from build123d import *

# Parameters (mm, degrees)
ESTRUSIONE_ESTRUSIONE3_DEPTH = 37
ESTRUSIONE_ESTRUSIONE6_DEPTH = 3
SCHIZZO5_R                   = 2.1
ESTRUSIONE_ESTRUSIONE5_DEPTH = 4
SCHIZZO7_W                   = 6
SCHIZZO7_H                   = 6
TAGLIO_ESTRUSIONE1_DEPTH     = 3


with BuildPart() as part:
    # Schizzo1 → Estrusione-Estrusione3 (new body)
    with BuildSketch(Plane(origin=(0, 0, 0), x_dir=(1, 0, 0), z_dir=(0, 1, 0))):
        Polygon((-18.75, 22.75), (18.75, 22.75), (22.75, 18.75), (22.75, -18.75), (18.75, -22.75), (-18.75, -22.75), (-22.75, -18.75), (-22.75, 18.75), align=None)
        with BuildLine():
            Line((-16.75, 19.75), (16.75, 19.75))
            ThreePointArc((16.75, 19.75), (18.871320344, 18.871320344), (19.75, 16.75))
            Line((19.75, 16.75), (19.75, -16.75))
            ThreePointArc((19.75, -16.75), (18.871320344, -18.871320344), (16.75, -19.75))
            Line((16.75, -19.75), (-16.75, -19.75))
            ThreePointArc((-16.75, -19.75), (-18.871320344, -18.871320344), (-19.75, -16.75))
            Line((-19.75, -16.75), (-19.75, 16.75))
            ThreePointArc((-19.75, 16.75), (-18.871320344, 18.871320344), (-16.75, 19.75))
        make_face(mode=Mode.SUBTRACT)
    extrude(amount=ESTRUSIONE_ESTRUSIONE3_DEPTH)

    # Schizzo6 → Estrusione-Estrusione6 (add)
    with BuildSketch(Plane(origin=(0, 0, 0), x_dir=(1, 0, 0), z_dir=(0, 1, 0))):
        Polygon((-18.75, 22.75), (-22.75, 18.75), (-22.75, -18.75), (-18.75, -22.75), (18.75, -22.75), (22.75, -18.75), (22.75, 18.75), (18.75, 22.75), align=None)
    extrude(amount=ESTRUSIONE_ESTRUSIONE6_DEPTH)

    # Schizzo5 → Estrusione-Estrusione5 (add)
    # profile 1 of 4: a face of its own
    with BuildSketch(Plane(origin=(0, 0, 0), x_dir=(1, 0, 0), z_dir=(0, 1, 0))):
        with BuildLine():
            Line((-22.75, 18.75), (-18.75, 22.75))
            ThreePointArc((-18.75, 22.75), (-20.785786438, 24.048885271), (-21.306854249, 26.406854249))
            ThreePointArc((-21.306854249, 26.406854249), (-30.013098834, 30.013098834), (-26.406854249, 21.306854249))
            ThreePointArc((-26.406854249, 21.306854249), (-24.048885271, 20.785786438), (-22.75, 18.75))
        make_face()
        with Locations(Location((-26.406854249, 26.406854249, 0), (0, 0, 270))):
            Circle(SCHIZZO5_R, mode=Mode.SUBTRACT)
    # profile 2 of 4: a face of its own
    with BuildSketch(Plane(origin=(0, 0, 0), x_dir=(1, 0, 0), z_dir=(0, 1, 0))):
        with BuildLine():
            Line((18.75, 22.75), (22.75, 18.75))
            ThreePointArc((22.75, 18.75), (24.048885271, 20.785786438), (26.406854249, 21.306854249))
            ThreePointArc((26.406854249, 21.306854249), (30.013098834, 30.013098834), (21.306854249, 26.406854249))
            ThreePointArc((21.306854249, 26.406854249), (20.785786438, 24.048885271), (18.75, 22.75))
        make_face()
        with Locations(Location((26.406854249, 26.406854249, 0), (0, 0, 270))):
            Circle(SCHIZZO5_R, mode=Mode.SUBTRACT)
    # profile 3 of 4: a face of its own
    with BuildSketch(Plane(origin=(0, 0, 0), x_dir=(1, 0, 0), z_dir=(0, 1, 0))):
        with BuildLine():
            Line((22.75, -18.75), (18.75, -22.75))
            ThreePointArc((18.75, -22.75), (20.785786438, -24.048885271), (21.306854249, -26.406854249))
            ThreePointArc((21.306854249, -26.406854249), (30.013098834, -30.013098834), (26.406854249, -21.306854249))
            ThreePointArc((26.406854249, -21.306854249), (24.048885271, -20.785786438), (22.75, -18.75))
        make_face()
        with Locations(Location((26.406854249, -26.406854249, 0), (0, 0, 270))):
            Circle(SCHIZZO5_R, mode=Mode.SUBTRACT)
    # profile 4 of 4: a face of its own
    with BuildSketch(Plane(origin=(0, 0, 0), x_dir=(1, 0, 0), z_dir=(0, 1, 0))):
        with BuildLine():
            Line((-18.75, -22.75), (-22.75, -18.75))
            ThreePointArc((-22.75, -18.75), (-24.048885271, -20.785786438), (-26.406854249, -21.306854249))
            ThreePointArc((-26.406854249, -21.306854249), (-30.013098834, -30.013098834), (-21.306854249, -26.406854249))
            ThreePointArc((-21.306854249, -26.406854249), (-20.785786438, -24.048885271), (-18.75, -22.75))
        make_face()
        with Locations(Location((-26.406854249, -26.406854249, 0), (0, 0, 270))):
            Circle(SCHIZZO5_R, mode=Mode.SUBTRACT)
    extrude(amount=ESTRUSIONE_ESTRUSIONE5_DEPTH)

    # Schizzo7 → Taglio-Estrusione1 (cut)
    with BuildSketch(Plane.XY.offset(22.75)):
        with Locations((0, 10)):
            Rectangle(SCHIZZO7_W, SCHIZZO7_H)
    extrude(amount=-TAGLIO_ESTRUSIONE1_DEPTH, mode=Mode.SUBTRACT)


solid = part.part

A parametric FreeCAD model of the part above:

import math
import FreeCAD as App
import Part
import Sketcher

V = App.Vector
Q = App.Units.Quantity


def add_polygon(sketch, points):
    """Adds a closed chain of lines whose ends are joined by coincident constraints."""
    first, n = sketch.GeometryCount, len(points)
    for a, b in zip(points, points[1:] + points[:1]):
        sketch.addGeometry(Part.LineSegment(App.Vector(*a, 0), App.Vector(*b, 0)), False)
    for i in range(n):
        sketch.addConstraint(Sketcher.Constraint("Coincident", first + i, 2, first + (i + 1) % n, 1))

doc = App.newDocument("Part")
body = doc.addObject("PartDesign::Body", "Body")

# Sketch on XZ plane
sketch1 = doc.addObject("Sketcher::SketchObject", "Sketch")
body.addObject(sketch1)
sketch1.AttachmentSupport = (doc.XZ_Plane, [""])
sketch1.MapMode = "FlatFace"
add_polygon(sketch1, [(18.8, -22.8), (-18.8, -22.8), (-22.8, -18.8), (-22.8, 18.8), (-18.8, 22.8), (18.8, 22.8), (22.8, 18.8), (22.8, -18.8)])  # lines 0-7
sketch1.addGeometry(Part.LineSegment(V(-16.8, -19.8, 0), V(16.8, -19.8, 0)), False)  # 8
sketch1.addGeometry(Part.ArcOfCircle(Part.Circle(V(16.8, -16.8, 0), V(0, 0, 1), 3), math.radians(-90), math.radians(0)), False)  # 9
sketch1.addGeometry(Part.LineSegment(V(19.8, -16.8, 0), V(19.8, 16.8, 0)), False)  # 10
sketch1.addGeometry(Part.ArcOfCircle(Part.Circle(V(16.8, 16.8, 0), V(0, 0, 1), 3), math.radians(0), math.radians(90)), False)  # 11
sketch1.addGeometry(Part.LineSegment(V(16.8, 19.8, 0), V(-16.8, 19.8, 0)), False)  # 12
sketch1.addGeometry(Part.ArcOfCircle(Part.Circle(V(-16.8, 16.8, 0), V(0, 0, 1), 3), math.radians(90), math.radians(180)), False)  # 13
sketch1.addGeometry(Part.LineSegment(V(-19.8, 16.8, 0), V(-19.8, -16.8, 0)), False)  # 14
sketch1.addGeometry(Part.ArcOfCircle(Part.Circle(V(-16.8, -16.8, 0), V(0, 0, 1), 3), math.radians(180), math.radians(270)), False)  # 15
sketch1.addConstraint([
    Sketcher.Constraint("Tangent", 8, 2, 9, 1),
    Sketcher.Constraint("Tangent", 9, 2, 10, 1),
    Sketcher.Constraint("Tangent", 10, 2, 11, 1),
    Sketcher.Constraint("Tangent", 11, 2, 12, 1),
    Sketcher.Constraint("Tangent", 12, 2, 13, 1),
    Sketcher.Constraint("Tangent", 13, 2, 14, 1),
    Sketcher.Constraint("Tangent", 14, 2, 15, 1),
    Sketcher.Constraint("Tangent", 15, 2, 8, 1),
    Sketcher.Constraint("Horizontal", 0),
    Sketcher.Constraint("Vertical", 2),
    Sketcher.Constraint("Horizontal", 4),
    Sketcher.Constraint("Vertical", 6),
    Sketcher.Constraint("Horizontal", 8),
    Sketcher.Constraint("Vertical", 10),
    Sketcher.Constraint("Horizontal", 12),
    Sketcher.Constraint("Vertical", 14),
    Sketcher.Constraint("Equal", 9, 11),
    Sketcher.Constraint("Equal", 11, 13),
    Sketcher.Constraint("Equal", 13, 15),
    Sketcher.Constraint("Symmetric", 9, 3, 13, 3, -1, 1),
    Sketcher.Constraint("Symmetric", 0, 2, 4, 2, -1, 1),
    Sketcher.Constraint("Symmetric", 1, 2, 5, 2, -1, 1),
    Sketcher.Constraint("Perpendicular", 1, 3),
    Sketcher.Constraint("Perpendicular", 5, 7),
    Sketcher.Constraint("Horizontal", 2, 2, 5, 2),
    Sketcher.Constraint("Horizontal", 1, 2, 6, 2),
    Sketcher.Constraint("Vertical", 0, 2, 3, 2),
    Sketcher.Constraint("Equal", 4, 2),
    Sketcher.Constraint("Equal", 12, 10),
    Sketcher.Constraint("Radius", 9, Q("3 mm")),
    Sketcher.Constraint("DistanceX", 0, 2, 0, 1, Q("37.5 mm")),
    Sketcher.Constraint("DistanceX", 8, 1, 8, 2, Q("33.5 mm")),
    Sketcher.Constraint("DistanceY", 0, 2, 15, 3, Q("6 mm")),
])
pad1 = doc.addObject("PartDesign::Pad", "Pad")
body.addObject(pad1)
pad1.Profile = sketch1
pad1.Length = 37
pad1.Reversed = True

# Sketch on XZ plane
sketch2 = doc.addObject("Sketcher::SketchObject", "Sketch001")
body.addObject(sketch2)
sketch2.AttachmentSupport = (doc.XZ_Plane, [""])
sketch2.MapMode = "FlatFace"
add_polygon(sketch2, [(-19, -23), (-23, -19), (-23, 19), (-19, 23), (19, 23), (23, 19), (23, -19), (19, -23)])  # lines 0-7
sketch2.addConstraint([
    Sketcher.Constraint("Vertical", 1),
    Sketcher.Constraint("Horizontal", 3),
    Sketcher.Constraint("Vertical", 5),
    Sketcher.Constraint("Horizontal", 7),
    Sketcher.Constraint("Symmetric", 0, 2, 4, 2, -1, 1),
    Sketcher.Constraint("Symmetric", 2, 2, 6, 2, -1, 1),
    Sketcher.Constraint("Perpendicular", 0, 2),
    Sketcher.Constraint("Perpendicular", 2, 4),
    Sketcher.Constraint("Perpendicular", 4, 6),
    Sketcher.Constraint("Horizontal", 1, 2, 4, 2),
    Sketcher.Constraint("Vertical", 3, 2, 6, 2),
    Sketcher.Constraint("Equal", 7, 1),
    Sketcher.Constraint("DistanceX", 3, 1, 3, 2, Q("37.5 mm")),
    Sketcher.Constraint("DistanceX", 1, 2, 2, 2, Q("4 mm")),
])
pad2 = doc.addObject("PartDesign::Pad", "Pad001")
body.addObject(pad2)
pad2.Profile = sketch2
pad2.Length = 3
pad2.Reversed = True

# Sketch on XZ plane
sketch3 = doc.addObject("Sketcher::SketchObject", "Sketch002")
body.addObject(sketch3)
sketch3.AttachmentSupport = (doc.XZ_Plane, [""])
sketch3.MapMode = "FlatFace"
sketch3.addGeometry([
    Part.LineSegment(V(-22.8, -18.8, 0), V(-18.8, -22.8, 0)),  # 0
    Part.ArcOfCircle(Part.Circle(V(-18.2, -25.9, 0), V(0, 0, 1), 3.2), math.radians(100), math.radians(190)),  # 1
    Part.ArcOfCircle(Part.Circle(V(-26.4, -26.4, 0), V(0, 0, 1), 5.1), math.radians(90), math.radians(360)),  # 2
    Part.ArcOfCircle(Part.Circle(V(-25.9, -18.2, 0), V(0, 0, 1), 3.2), math.radians(-100), math.radians(-10)),  # 3
    Part.Circle(V(-26.4, -26.4, 0), V(0, 0, 1), 2.1),  # 4
    Part.LineSegment(V(18.8, -22.8, 0), V(22.8, -18.8, 0)),  # 5
    Part.ArcOfCircle(Part.Circle(V(25.9, -18.2, 0), V(0, 0, 1), 3.2), math.radians(-170), math.radians(-80)),  # 6
    Part.ArcOfCircle(Part.Circle(V(26.4, -26.4, 0), V(0, 0, 1), 5.1), math.radians(180), math.radians(450)),  # 7
    Part.ArcOfCircle(Part.Circle(V(18.2, -25.9, 0), V(0, 0, 1), 3.2), math.radians(-10), math.radians(80)),  # 8
    Part.Circle(V(26.4, -26.4, 0), V(0, 0, 1), 2.1),  # 9
    Part.LineSegment(V(22.8, 18.8, 0), V(18.8, 22.8, 0)),  # 10
    Part.ArcOfCircle(Part.Circle(V(18.2, 25.9, 0), V(0, 0, 1), 3.2), math.radians(-80), math.radians(10)),  # 11
    Part.ArcOfCircle(Part.Circle(V(26.4, 26.4, 0), V(0, 0, 1), 5.1), math.radians(-90), math.radians(180)),  # 12
    Part.ArcOfCircle(Part.Circle(V(25.9, 18.2, 0), V(0, 0, 1), 3.2), math.radians(80), math.radians(170)),  # 13
    Part.Circle(V(26.4, 26.4, 0), V(0, 0, 1), 2.1),  # 14
    Part.LineSegment(V(-18.8, 22.8, 0), V(-22.8, 18.8, 0)),  # 15
    Part.ArcOfCircle(Part.Circle(V(-25.9, 18.2, 0), V(0, 0, 1), 3.2), math.radians(10), math.radians(100)),  # 16
    Part.ArcOfCircle(Part.Circle(V(-26.4, 26.4, 0), V(0, 0, 1), 5.1), math.radians(0), math.radians(270)),  # 17
    Part.ArcOfCircle(Part.Circle(V(-18.2, 25.9, 0), V(0, 0, 1), 3.2), math.radians(170), math.radians(260)),  # 18
    Part.Circle(V(-26.4, 26.4, 0), V(0, 0, 1), 2.1),  # 19
], False)
sketch3.addConstraint([
    Sketcher.Constraint("Coincident", 0, 2, 1, 1),
    Sketcher.Constraint("Coincident", 1, 2, 2, 2),
    Sketcher.Constraint("Coincident", 2, 1, 3, 1),
    Sketcher.Constraint("Coincident", 3, 2, 0, 1),
    Sketcher.Constraint("Coincident", 5, 2, 6, 1),
    Sketcher.Constraint("Coincident", 6, 2, 7, 2),
    Sketcher.Constraint("Coincident", 7, 1, 8, 1),
    Sketcher.Constraint("Coincident", 8, 2, 5, 1),
    Sketcher.Constraint("Coincident", 10, 2, 11, 1),
    Sketcher.Constraint("Coincident", 11, 2, 12, 2),
    Sketcher.Constraint("Coincident", 12, 1, 13, 1),
    Sketcher.Constraint("Coincident", 13, 2, 10, 1),
    Sketcher.Constraint("Coincident", 15, 2, 16, 1),
    Sketcher.Constraint("Coincident", 16, 2, 17, 2),
    Sketcher.Constraint("Coincident", 17, 1, 18, 1),
    Sketcher.Constraint("Coincident", 18, 2, 15, 1),
    Sketcher.Constraint("Coincident", 4, 3, 2, 3),
    Sketcher.Constraint("Coincident", 9, 3, 7, 3),
    Sketcher.Constraint("Coincident", 14, 3, 12, 3),
    Sketcher.Constraint("Coincident", 19, 3, 17, 3),
    Sketcher.Constraint("Equal", 1, 3),
    Sketcher.Constraint("Equal", 3, 6),
    Sketcher.Constraint("Equal", 2, 7),
    Sketcher.Constraint("Equal", 6, 8),
    Sketcher.Constraint("Equal", 4, 9),
    Sketcher.Constraint("Equal", 8, 11),
    Sketcher.Constraint("Equal", 7, 12),
    Sketcher.Constraint("Equal", 11, 13),
    Sketcher.Constraint("Equal", 9, 14),
    Sketcher.Constraint("Equal", 13, 16),
    Sketcher.Constraint("Equal", 12, 17),
    Sketcher.Constraint("Equal", 16, 18),
    Sketcher.Constraint("Equal", 14, 19),
    Sketcher.Constraint("Symmetric", 1, 3, 11, 3, -1, 1),
    Sketcher.Constraint("Symmetric", 2, 3, 12, 3, -1, 1),
    Sketcher.Constraint("Symmetric", 3, 3, 13, 3, -1, 1),
    Sketcher.Constraint("Symmetric", 6, 3, 16, 3, -1, 1),
    Sketcher.Constraint("Symmetric", 7, 3, 17, 3, -1, 1),
    Sketcher.Constraint("Symmetric", 8, 3, 18, 3, -1, 1),
    Sketcher.Constraint("Symmetric", 3, 3, 6, 3, -2),
    Sketcher.Constraint("Symmetric", 2, 3, 7, 3, -2),
    Sketcher.Constraint("Symmetric", 1, 3, 8, 3, -2),
    Sketcher.Constraint("Perpendicular", 0, 5),
    Sketcher.Constraint("Perpendicular", 5, 10),
    Sketcher.Constraint("Perpendicular", 10, 15),
    Sketcher.Constraint("Horizontal", 9, 3, 1, 2),
    Sketcher.Constraint("Horizontal", 3, 2, 5, 2),
    Sketcher.Constraint("Horizontal", 0, 2, 8, 2),
    Sketcher.Constraint("Horizontal", 13, 2, 15, 2),
    Sketcher.Constraint("Vertical", 19, 3, 2, 1),
    Sketcher.Constraint("Vertical", 8, 2, 10, 2),
    Sketcher.Constraint("Diameter", 4, Q("4.2 mm")),
    Sketcher.Constraint("Radius", 2, Q("5.1 mm")),
    Sketcher.Constraint("DistanceX", 3, 2, 0, 2, Q("4 mm")),
    Sketcher.Constraint("DistanceX", 1, 3, -1, 1, Q("18.2 mm")),
    Sketcher.Constraint("DistanceY", 3, 3, -1, 1, Q("18.2 mm")),
    Sketcher.Constraint("DistanceX", 0, 2, -1, 1, Q("18.75 mm")),
    Sketcher.Constraint("DistanceY", 0, 2, -1, 1, Q("22.75 mm")),
    Sketcher.Constraint("Radius", 1, Q("3.155161 mm")),
])
pad3 = doc.addObject("PartDesign::Pad", "Pad002")
body.addObject(pad3)
pad3.Profile = sketch3
pad3.Length = 4
pad3.Reversed = True

# Sketch on XY plane
sketch4 = doc.addObject("Sketcher::SketchObject", "Sketch003")
body.addObject(sketch4)
sketch4.AttachmentSupport = (doc.XY_Plane, [""])
sketch4.MapMode = "FlatFace"
sketch4.AttachmentOffset = App.Placement(V(0, 0, 22.75), App.Rotation())
add_polygon(sketch4, [(-3, 13), (-3, 7), (3, 7), (3, 13)])  # lines 0-3
sketch4.addConstraint([
    Sketcher.Constraint("Vertical", 0),
    Sketcher.Constraint("Horizontal", 1),
    Sketcher.Constraint("Vertical", 2),
    Sketcher.Constraint("Horizontal", 3),
    Sketcher.Constraint("Equal", 3, 0),
    Sketcher.Constraint("DistanceX", 1, 1, 1, 2, Q("6 mm")),
    Sketcher.Constraint("DistanceX", 0, 2, -1, 1, Q("3 mm")),
    Sketcher.Constraint("DistanceY", -1, 1, 0, 2, Q("7 mm")),
])
pocket1 = doc.addObject("PartDesign::Pocket", "Pocket")
body.addObject(pocket1)
pocket1.Profile = sketch4
pocket1.Length = 3

doc.recompute()
